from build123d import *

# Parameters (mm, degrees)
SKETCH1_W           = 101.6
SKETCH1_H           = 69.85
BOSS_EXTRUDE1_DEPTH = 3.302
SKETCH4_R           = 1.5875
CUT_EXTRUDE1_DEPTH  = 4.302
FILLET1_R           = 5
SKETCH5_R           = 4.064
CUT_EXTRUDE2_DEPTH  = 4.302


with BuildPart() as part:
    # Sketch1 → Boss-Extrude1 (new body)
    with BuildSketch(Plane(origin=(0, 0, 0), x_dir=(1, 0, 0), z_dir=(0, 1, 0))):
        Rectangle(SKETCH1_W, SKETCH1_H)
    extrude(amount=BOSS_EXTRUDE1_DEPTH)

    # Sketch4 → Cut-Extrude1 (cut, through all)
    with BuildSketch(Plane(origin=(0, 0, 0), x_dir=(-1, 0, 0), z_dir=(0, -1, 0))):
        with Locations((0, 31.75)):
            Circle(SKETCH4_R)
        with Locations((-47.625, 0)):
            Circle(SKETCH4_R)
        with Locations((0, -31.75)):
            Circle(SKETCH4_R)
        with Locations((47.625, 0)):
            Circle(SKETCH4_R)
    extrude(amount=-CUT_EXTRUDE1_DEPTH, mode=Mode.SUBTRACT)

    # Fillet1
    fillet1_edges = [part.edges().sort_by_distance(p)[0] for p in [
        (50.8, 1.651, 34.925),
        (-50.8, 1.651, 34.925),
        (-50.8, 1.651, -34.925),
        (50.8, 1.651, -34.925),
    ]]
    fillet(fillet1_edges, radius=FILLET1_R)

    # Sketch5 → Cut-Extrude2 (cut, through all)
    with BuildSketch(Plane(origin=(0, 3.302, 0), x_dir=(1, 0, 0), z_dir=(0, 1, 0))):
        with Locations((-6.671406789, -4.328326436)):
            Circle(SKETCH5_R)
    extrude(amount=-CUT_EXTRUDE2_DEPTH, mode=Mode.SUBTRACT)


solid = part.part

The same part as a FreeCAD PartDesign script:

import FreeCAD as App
import Part
import Sketcher
from FreeCAD import Vector
Q = App.Units.Quantity


def edges_at(feature, points):
    """Names of the edges that pass closest to the given points."""
    edges = feature.Shape.Edges
    near = lambda p: min(range(len(edges)), key=lambda i: edges[i].distToShape(Part.Vertex(*p))[0])
    return sorted({f"Edge{near(p) + 1}" for p in points})

doc = App.newDocument("Part")
body = doc.addObject("PartDesign::Body", "Body")

# Sketch on XZ plane
sketch1 = doc.addObject("Sketcher::SketchObject", "Sketch")
body.addObject(sketch1)
sketch1.AttachmentSupport = (doc.XZ_Plane, [""])
sketch1.MapMode = "FlatFace"
sketch1.addGeometry([
    Part.LineSegment(Vector(-51, -35, 0), Vector(-51, 35, 0)),
    Part.LineSegment(Vector(-51, 35, 0), Vector(51, 35, 0)),
    Part.LineSegment(Vector(51, 35, 0), Vector(51, -35, 0)),
    Part.LineSegment(Vector(51, -35, 0), Vector(-51, -35, 0)),
], False)
sketch1.addConstraint([
    Sketcher.Constraint("Coincident", 0, 2, 1, 1),
    Sketcher.Constraint("Coincident", 1, 2, 2, 1),
    Sketcher.Constraint("Coincident", 2, 2, 3, 1),
    Sketcher.Constraint("Coincident", 3, 2, 0, 1),
    Sketcher.Constraint("Vertical", 0),
    Sketcher.Constraint("Horizontal", 1),
    Sketcher.Constraint("Vertical", 2),
    Sketcher.Constraint("Horizontal", 3),
    Sketcher.Constraint("Symmetric", 0, 2, 2, 2, -1, 1),
    Sketcher.Constraint("DistanceX", 1, 1, 1, 2, Q("4 in")),
    Sketcher.Constraint("DistanceY", 0, 1, 0, 2, Q("2.75 in")),
])
pad1 = doc.addObject("PartDesign::Pad", "Pad")
body.addObject(pad1)
pad1.Profile = sketch1
pad1.Length = Q("0.13 in")
pad1.Reversed = True

# Sketch on XZ plane
sketch2 = doc.addObject("Sketcher::SketchObject", "Sketch001")
body.addObject(sketch2)
sketch2.AttachmentSupport = (doc.XZ_Plane, [""])
sketch2.MapMode = "FlatFace"
sketch2.addGeometry([
    Part.Circle(Vector(0, -31.8, 0), Vector(0, 0, 1), 1.6),
    Part.Circle(Vector(47.6, 0, 0), Vector(0, 0, 1), 1.6),
    Part.Circle(Vector(0, 31.8, 0), Vector(0, 0, 1), 1.6),
    Part.Circle(Vector(-47.6, 0, 0), Vector(0, 0, 1), 1.6),
], False)
sketch2.addConstraint([
    Sketcher.Constraint("Equal", 0, 1),
    Sketcher.Constraint("Equal", 1, 2),
    Sketcher.Constraint("Equal", 2, 3),
    Sketcher.Constraint("Symmetric", 0, 3, 2, 3, -1, 1),
    Sketcher.Constraint("Symmetric", 1, 3, 3, 3, -1, 1),
    Sketcher.Constraint("PointOnObject", 0, 3, -2),
    Sketcher.Constraint("PointOnObject", 1, 3, -1),
    Sketcher.Constraint("Diameter", 0, Q("0.125 in")),
    Sketcher.Constraint("DistanceY", 0, 3, 2, 3, Q("2.5 in")),
    Sketcher.Constraint("DistanceX", 3, 3, 1, 3, Q("3.75 in")),
])
pocket1 = doc.addObject("PartDesign::Pocket", "Pocket")
body.addObject(pocket1)
pocket1.Profile = sketch2
pocket1.Type = "ThroughAll"
doc.recompute()

fillet = doc.addObject("PartDesign::Fillet", "Fillet")
body.addObject(fillet)
fillet.Base = (pocket1, edges_at(pocket1, [
    (50.8, 1.651, 34.925),
    (-50.8, 1.651, 34.925),
    (-50.8, 1.651, -34.925),
    (50.8, 1.651, -34.925),
]))
fillet.Radius = 5

# Sketch on XZ plane
sketch3 = doc.addObject("Sketcher::SketchObject", "Sketch002")
body.addObject(sketch3)
sketch3.AttachmentSupport = (doc.XZ_Plane, [""])
sketch3.MapMode = "FlatFace"
sketch3.AttachmentOffset = App.Placement(Vector(0, 0, -0.13 * 25.4), App.Rotation())
sketch3.addGeometry(Part.Circle(Vector(-6.7, 4.3, 0), Vector(0, 0, 1), 4.1), False)
sketch3.addConstraint([
    Sketcher.Constraint("Diameter", 0, Q("0.32 in")),
    Sketcher.Constraint("DistanceX", 0, 3, -1, 1, Q("6.671407 mm")),
    Sketcher.Constraint("DistanceY", -1, 1, 0, 3, Q("4.328326 mm")),
])
pocket2 = doc.addObject("PartDesign::Pocket", "Pocket001")
body.addObject(pocket2)
pocket2.Profile = sketch3
pocket2.Type = "ThroughAll"
pocket2.Reversed = True

doc.recompute()
